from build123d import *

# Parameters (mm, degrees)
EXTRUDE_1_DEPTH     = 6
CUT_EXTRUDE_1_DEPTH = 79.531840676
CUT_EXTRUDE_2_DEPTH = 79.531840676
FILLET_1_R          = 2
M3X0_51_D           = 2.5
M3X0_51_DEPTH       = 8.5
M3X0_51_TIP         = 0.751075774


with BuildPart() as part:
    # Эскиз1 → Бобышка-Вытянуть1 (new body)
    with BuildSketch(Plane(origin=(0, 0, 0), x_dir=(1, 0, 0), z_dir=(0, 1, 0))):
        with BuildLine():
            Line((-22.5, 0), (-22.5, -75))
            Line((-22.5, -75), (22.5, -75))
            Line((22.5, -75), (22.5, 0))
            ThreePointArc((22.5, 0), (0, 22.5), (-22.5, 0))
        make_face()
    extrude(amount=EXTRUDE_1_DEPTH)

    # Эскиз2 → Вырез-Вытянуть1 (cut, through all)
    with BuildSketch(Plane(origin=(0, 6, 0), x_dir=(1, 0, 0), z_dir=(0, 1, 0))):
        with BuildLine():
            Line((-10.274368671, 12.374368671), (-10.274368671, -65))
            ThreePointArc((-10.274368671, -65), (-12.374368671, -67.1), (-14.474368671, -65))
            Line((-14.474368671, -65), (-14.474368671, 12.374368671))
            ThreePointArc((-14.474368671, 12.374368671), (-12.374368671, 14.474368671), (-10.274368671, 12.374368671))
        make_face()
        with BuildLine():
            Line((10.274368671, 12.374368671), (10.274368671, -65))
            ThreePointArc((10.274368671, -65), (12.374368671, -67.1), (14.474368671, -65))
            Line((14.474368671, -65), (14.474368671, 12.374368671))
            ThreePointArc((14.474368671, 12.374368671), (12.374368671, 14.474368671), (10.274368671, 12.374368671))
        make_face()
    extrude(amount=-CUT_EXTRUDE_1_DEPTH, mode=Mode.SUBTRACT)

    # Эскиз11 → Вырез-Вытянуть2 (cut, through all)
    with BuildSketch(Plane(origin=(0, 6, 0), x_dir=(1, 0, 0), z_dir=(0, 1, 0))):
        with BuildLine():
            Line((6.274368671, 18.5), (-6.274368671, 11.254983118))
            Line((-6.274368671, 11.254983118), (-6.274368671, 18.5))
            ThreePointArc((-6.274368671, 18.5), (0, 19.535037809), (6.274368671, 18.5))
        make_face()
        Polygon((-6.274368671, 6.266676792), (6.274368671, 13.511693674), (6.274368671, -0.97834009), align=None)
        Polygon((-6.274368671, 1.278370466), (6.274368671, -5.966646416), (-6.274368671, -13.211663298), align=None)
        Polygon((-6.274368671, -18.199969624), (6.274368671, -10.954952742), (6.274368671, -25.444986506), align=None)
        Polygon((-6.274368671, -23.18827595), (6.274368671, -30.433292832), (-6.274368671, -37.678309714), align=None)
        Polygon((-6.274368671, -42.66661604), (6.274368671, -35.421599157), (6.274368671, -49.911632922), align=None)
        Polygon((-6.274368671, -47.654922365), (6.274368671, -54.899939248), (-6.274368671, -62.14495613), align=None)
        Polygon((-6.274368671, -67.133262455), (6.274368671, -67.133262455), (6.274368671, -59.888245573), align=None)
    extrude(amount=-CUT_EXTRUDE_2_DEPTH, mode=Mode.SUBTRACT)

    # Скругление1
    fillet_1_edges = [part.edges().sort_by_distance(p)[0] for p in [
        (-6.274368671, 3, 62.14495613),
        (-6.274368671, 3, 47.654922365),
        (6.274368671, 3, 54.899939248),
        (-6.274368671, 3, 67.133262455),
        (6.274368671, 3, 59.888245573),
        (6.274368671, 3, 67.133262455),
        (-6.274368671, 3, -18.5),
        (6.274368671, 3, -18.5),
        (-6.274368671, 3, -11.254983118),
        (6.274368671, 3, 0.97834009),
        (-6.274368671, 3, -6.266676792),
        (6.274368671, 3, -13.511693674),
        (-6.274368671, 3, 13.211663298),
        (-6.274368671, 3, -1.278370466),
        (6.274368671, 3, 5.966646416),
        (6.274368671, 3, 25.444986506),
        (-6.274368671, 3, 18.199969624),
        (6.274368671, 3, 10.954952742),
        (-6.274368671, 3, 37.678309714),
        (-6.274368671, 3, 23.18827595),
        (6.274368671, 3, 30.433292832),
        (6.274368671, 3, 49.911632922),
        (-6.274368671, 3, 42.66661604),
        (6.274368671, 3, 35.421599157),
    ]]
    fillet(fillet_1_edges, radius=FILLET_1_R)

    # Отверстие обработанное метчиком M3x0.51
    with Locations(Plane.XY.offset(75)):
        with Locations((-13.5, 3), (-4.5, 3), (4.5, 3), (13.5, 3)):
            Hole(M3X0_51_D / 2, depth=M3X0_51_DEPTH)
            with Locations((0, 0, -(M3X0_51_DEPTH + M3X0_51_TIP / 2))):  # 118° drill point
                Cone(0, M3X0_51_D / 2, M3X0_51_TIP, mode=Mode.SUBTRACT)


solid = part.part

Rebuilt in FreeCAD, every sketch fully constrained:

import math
import FreeCAD as App
import Part
import Sketcher
Q = App.Units.Quantity


def edges_at(feature, points):
    """Names of the edges that pass closest to the given points."""
    edges = feature.Shape.Edges
    near = lambda p: min(range(len(edges)), key=lambda i: edges[i].distToShape(Part.Vertex(*p))[0])
    return sorted({f"Edge{near(p) + 1}" for p in points})

doc = App.newDocument("Part")
body = doc.addObject("PartDesign::Body", "Body")

sketch1 = doc.addObject("Sketcher::SketchObject", "Sketch")
body.addObject(sketch1)
sketch1.AttachmentSupport = (doc.XZ_Plane, [""])
sketch1.MapMode = "FlatFace"
sketch1.addGeometry([
    Part.LineSegment(App.Vector(-22, 0, 0), App.Vector(-22, 75, 0)),
    Part.LineSegment(App.Vector(-22, 75, 0), App.Vector(22, 75, 0)),
    Part.LineSegment(App.Vector(22, 75, 0), App.Vector(22, 0, 0)),
    Part.ArcOfCircle(Part.Circle(App.Vector(0, 0, 0), App.Vector(0, 0, 1), 22), math.radians(180), math.radians(360)),
], False)
sketch1.addConstraint([
    Sketcher.Constraint("Coincident", 0, 2, 1, 1),
    Sketcher.Constraint("Coincident", 1, 2, 2, 1),
    Sketcher.Constraint("Tangent", 2, 2, 3, 2),
    Sketcher.Constraint("Tangent", 3, 1, 0, 1),
    Sketcher.Constraint("Vertical", 0),
    Sketcher.Constraint("Horizontal", 1),
    Sketcher.Constraint("Vertical", 2),
    Sketcher.Constraint("Coincident", 3, 3, -1, 1),
    Sketcher.Constraint("Radius", 3, Q("22.5 mm")),
    Sketcher.Constraint("DistanceY", 0, 1, 0, 2, Q("75 mm")),
])
pad1 = doc.addObject("PartDesign::Pad", "Pad")
body.addObject(pad1)
pad1.Profile = sketch1
pad1.Length = 6
pad1.Reversed = True

sketch2 = doc.addObject("Sketcher::SketchObject", "Sketch001")
body.addObject(sketch2)
sketch2.AttachmentSupport = (doc.XZ_Plane, [""])
sketch2.MapMode = "FlatFace"
sketch2.AttachmentOffset = App.Placement(App.Vector(0, 0, -6), App.Rotation())
sketch2.addGeometry([
    Part.LineSegment(App.Vector(-10.3, 65, 0), App.Vector(-10.3, -12.4, 0)),
    Part.ArcOfCircle(Part.Circle(App.Vector(-12.4, -12.4, 0), App.Vector(0, 0, 1), 2.1), math.radians(180), math.radians(360)),
    Part.LineSegment(App.Vector(-14.5, -12.4, 0), App.Vector(-14.5, 65, 0)),
    Part.ArcOfCircle(Part.Circle(App.Vector(-12.4, 65, 0), App.Vector(0, 0, 1), 2.1), math.radians(0), math.radians(180)),
    Part.LineSegment(App.Vector(10.3, -12.4, 0), App.Vector(10.3, 65, 0)),
    Part.ArcOfCircle(Part.Circle(App.Vector(12.4, 65, 0), App.Vector(0, 0, 1), 2.1), math.radians(0), math.radians(180)),
    Part.LineSegment(App.Vector(14.5, 65, 0), App.Vector(14.5, -12.4, 0)),
    Part.ArcOfCircle(Part.Circle(App.Vector(12.4, -12.4, 0), App.Vector(0, 0, 1), 2.1), math.radians(180), math.radians(360)),
], False)
sketch2.addConstraint([
    Sketcher.Constraint("Tangent", 0, 2, 1, 2),
    Sketcher.Constraint("Tangent", 1, 1, 2, 1),
    Sketcher.Constraint("Tangent", 2, 2, 3, 2),
    Sketcher.Constraint("Tangent", 3, 1, 0, 1),
    Sketcher.Constraint("Tangent", 4, 2, 5, 2),
    Sketcher.Constraint("Tangent", 5, 1, 6, 1),
    Sketcher.Constraint("Tangent", 6, 2, 7, 2),
    Sketcher.Constraint("Tangent", 7, 1, 4, 1),
    Sketcher.Constraint("Vertical", 0),
    Sketcher.Constraint("Vertical", 2),
    Sketcher.Constraint("Vertical", 4),
    Sketcher.Constraint("Vertical", 6),
    Sketcher.Constraint("Equal", 3, 5),
    Sketcher.Constraint("Symmetric", 3, 3, 5, 3, -2),
    Sketcher.Constraint("Horizontal", 1, 3, 7, 3),
    Sketcher.Constraint("Radius", 1, Q("2.1 mm")),
    Sketcher.Constraint("DistanceY", -1, 1, 3, 3, Q("65 mm")),
    Sketcher.Constraint("DistanceY", 0, 2, 0, 1, Q("77.374369 mm")),
    Sketcher.Constraint("DistanceX", 1, 3, -1, 1, Q("12.374369 mm")),
])
pocket1 = doc.addObject("PartDesign::Pocket", "Pocket")
body.addObject(pocket1)
pocket1.Profile = sketch2
pocket1.Type = "ThroughAll"
pocket1.Reversed = True

sketch3 = doc.addObject("Sketcher::SketchObject", "Sketch002")
body.addObject(sketch3)
sketch3.AttachmentSupport = (doc.XZ_Plane, [""])
sketch3.MapMode = "FlatFace"
sketch3.AttachmentOffset = App.Placement(App.Vector(0, 0, -6), App.Rotation())
sketch3.addGeometry([
    Part.LineSegment(App.Vector(-6, -11, 0), App.Vector(6, -18, 0)),
    Part.ArcOfCircle(Part.Circle(App.Vector(0, 0, 0), App.Vector(0, 0, 1), 20), math.radians(-109), math.radians(-71)),
    Part.LineSegment(App.Vector(-6, -18, 0), App.Vector(-6, -11, 0)),
    Part.LineSegment(App.Vector(6, -14, 0), App.Vector(-6, -6, 0)),
    Part.LineSegment(App.Vector(-6, -6, 0), App.Vector(6, 1, 0)),
    Part.LineSegment(App.Vector(6, 1, 0), App.Vector(6, -14, 0)),
    Part.LineSegment(App.Vector(6, 6, 0), App.Vector(-6, -1, 0)),
    Part.LineSegment(App.Vector(-6, -1, 0), App.Vector(-6, 13, 0)),
    Part.LineSegment(App.Vector(-6, 13, 0), App.Vector(6, 6, 0)),
    Part.LineSegment(App.Vector(6, 11, 0), App.Vector(-6, 18, 0)),
    Part.LineSegment(App.Vector(-6, 18, 0), App.Vector(6, 25, 0)),
    Part.LineSegment(App.Vector(6, 25, 0), App.Vector(6, 11, 0)),
    Part.LineSegment(App.Vector(6, 30, 0), App.Vector(-6, 23, 0)),
    Part.LineSegment(App.Vector(-6, 23, 0), App.Vector(-6, 38, 0)),
    Part.LineSegment(App.Vector(-6, 38, 0), App.Vector(6, 30, 0)),
    Part.LineSegment(App.Vector(6, 35, 0), App.Vector(-6, 43, 0)),
    Part.LineSegment(App.Vector(-6, 43, 0), App.Vector(6, 50, 0)),
    Part.LineSegment(App.Vector(6, 50, 0), App.Vector(6, 35, 0)),
    Part.LineSegment(App.Vector(6, 55, 0), App.Vector(-6, 48, 0)),
    Part.LineSegment(App.Vector(-6, 48, 0), App.Vector(-6, 62, 0)),
    Part.LineSegment(App.Vector(-6, 62, 0), App.Vector(6, 55, 0)),
    Part.LineSegment(App.Vector(-6, 67, 0), App.Vector(6, 67, 0)),
    Part.LineSegment(App.Vector(6, 67, 0), App.Vector(6, 60, 0)),
    Part.LineSegment(App.Vector(6, 60, 0), App.Vector(-6, 67, 0)),
], False)
sketch3.addConstraint([
    Sketcher.Constraint("Coincident", 0, 2, 1, 2),
    Sketcher.Constraint("Coincident", 1, 1, 2, 1),
    Sketcher.Constraint("Coincident", 2, 2, 0, 1),
    Sketcher.Constraint("Coincident", 3, 2, 4, 1),
    Sketcher.Constraint("Coincident", 4, 2, 5, 1),
    Sketcher.Constraint("Coincident", 5, 2, 3, 1),
    Sketcher.Constraint("Coincident", 6, 2, 7, 1),
    Sketcher.Constraint("Coincident", 7, 2, 8, 1),
    Sketcher.Constraint("Coincident", 8, 2, 6, 1),
    Sketcher.Constraint("Coincident", 9, 2, 10, 1),
    Sketcher.Constraint("Coincident", 10, 2, 11, 1),
    Sketcher.Constraint("Coincident", 11, 2, 9, 1),
    Sketcher.Constraint("Coincident", 12, 2, 13, 1),
    Sketcher.Constraint("Coincident", 13, 2, 14, 1),
    Sketcher.Constraint("Coincident", 14, 2, 12, 1),
    Sketcher.Constraint("Coincident", 15, 2, 16, 1),
    Sketcher.Constraint("Coincident", 16, 2, 17, 1),
    Sketcher.Constraint("Coincident", 17, 2, 15, 1),
    Sketcher.Constraint("Coincident", 18, 2, 19, 1),
    Sketcher.Constraint("Coincident", 19, 2, 20, 1),
    Sketcher.Constraint("Coincident", 20, 2, 18, 1),
    Sketcher.Constraint("Coincident", 21, 2, 22, 1),
    Sketcher.Constraint("Coincident", 22, 2, 23, 1),
    Sketcher.Constraint("Coincident", 23, 2, 21, 1),
    Sketcher.Constraint("Vertical", 2),
    Sketcher.Constraint("Vertical", 5),
    Sketcher.Constraint("Vertical", 7),
    Sketcher.Constraint("Vertical", 11),
    Sketcher.Constraint("Vertical", 13),
    Sketcher.Constraint("Vertical", 17),
    Sketcher.Constraint("Vertical", 19),
    Sketcher.Constraint("Horizontal", 21),
    Sketcher.Constraint("Vertical", 22),
    Sketcher.Constraint("Coincident", 1, 3, -1, 1),
    Sketcher.Constraint("Parallel", 0, 3),
    Sketcher.Constraint("Parallel", 4, 6),
    Sketcher.Constraint("Parallel", 3, 8),
    Sketcher.Constraint("Parallel", 8, 9),
    Sketcher.Constraint("Parallel", 6, 10),
    Sketcher.Constraint("Parallel", 10, 12),
    Sketcher.Constraint("Parallel", 9, 14),
    Sketcher.Constraint("Parallel", 14, 15),
    Sketcher.Constraint("Parallel", 12, 16),
    Sketcher.Constraint("Parallel", 16, 18),
    Sketcher.Constraint("Parallel", 15, 20),
    Sketcher.Constraint("Parallel", 20, 23),
    Sketcher.Constraint("Horizontal", 0, 2, 1, 1),
    Sketcher.Constraint("Vertical", 2, 2, 3, 2),
    Sketcher.Constraint("Vertical", 0, 2, 4, 2),
    Sketcher.Constraint("Vertical", 3, 2, 6, 2),
    Sketcher.Constraint("Vertical", 5, 2, 8, 2),
    Sketcher.Constraint("Vertical", 7, 2, 9, 2),
    Sketcher.Constraint("Vertical", 8, 2, 10, 2),
    Sketcher.Constraint("Vertical", 9, 2, 12, 2),
    Sketcher.Constraint("Vertical", 11, 2, 14, 2),
    Sketcher.Constraint("Vertical", 13, 2, 15, 2),
    Sketcher.Constraint("Vertical", 14, 2, 16, 2),
    Sketcher.Constraint("Vertical", 15, 2, 18, 2),
    Sketcher.Constraint("Vertical", 17, 2, 20, 2),
    Sketcher.Constraint("Vertical", 20, 2, 21, 2),
    Sketcher.Constraint("Vertical", 19, 2, 23, 2),
    Sketcher.Constraint("Equal", 3, 4),
    Sketcher.Constraint("Angle", 0, Q("-30 deg")),
    Sketcher.Constraint("DistanceY", 0, 2, -1, 1, Q("18.5 mm")),
    Sketcher.Constraint("Radius", 1, Q("19.535038 mm")),
    Sketcher.Constraint("DistanceY", -1, 1, 17, 2, Q("35.421599 mm")),
    Sketcher.Constraint("DistanceY", -1, 1, 4, 2, Q("0.97834 mm")),
    Sketcher.Constraint("DistanceY", 6, 2, -1, 1, Q("1.27837 mm")),
    Sketcher.Constraint("DistanceY", -1, 1, 9, 2, Q("18.19997 mm")),
    Sketcher.Constraint("DistanceY", -1, 1, 13, 2, Q("37.67831 mm")),
    Sketcher.Constraint("DistanceY", -1, 1, 20, 2, Q("54.899939 mm")),
    Sketcher.Constraint("DistanceY", 16, 2, 21, 2, Q("17.22163 mm")),
])
pocket2 = doc.addObject("PartDesign::Pocket", "Pocket001")
body.addObject(pocket2)
pocket2.Profile = sketch3
pocket2.Type = "ThroughAll"
pocket2.Reversed = True
doc.recompute()

fillet = doc.addObject("PartDesign::Fillet", "Fillet")
body.addObject(fillet)
fillet.Base = (pocket2, edges_at(pocket2, [
    (-6.274, 3, 62.145),
    (-6.274, 3, 47.655),
    (6.274, 3, 54.9),
    (-6.274, 3, 67.133),
    (6.274, 3, 59.888),
    (6.274, 3, 67.133),
    (-6.274, 3, -18.5),
    (6.274, 3, -18.5),
    (-6.274, 3, -11.255),
    (6.274, 3, 0.978),
    (-6.274, 3, -6.267),
    (6.274, 3, -13.512),
    (-6.274, 3, 13.212),
    (-6.274, 3, -1.278),
    (6.274, 3, 5.967),
    (6.274, 3, 25.445),
    (-6.274, 3, 18.2),
    (6.274, 3, 10.955),
    (-6.274, 3, 37.678),
    (-6.274, 3, 23.188),
    (6.274, 3, 30.433),
    (6.274, 3, 49.912),
    (-6.274, 3, 42.667),
    (6.274, 3, 35.422),
]))
fillet.Radius = 2

sketch4 = doc.addObject("Sketcher::SketchObject", "Sketch003")
body.addObject(sketch4)
sketch4.AttachmentSupport = (doc.XY_Plane, [""])
sketch4.MapMode = "FlatFace"
sketch4.AttachmentOffset = App.Placement(App.Vector(0, 0, 75), App.Rotation())
sketch4.addGeometry([
    Part.Circle(App.Vector(-13.5, 3, 0), App.Vector(0, 0, 1), 1.2),
    Part.Circle(App.Vector(-4.5, 3, 0), App.Vector(0, 0, 1), 1.2),
    Part.Circle(App.Vector(4.5, 3, 0), App.Vector(0, 0, 1), 1.2),
    Part.Circle(App.Vector(13.5, 3, 0), App.Vector(0, 0, 1), 1.2),
], False)
sketch4.addConstraint([
    Sketcher.Constraint("Equal", 0, 1),
    Sketcher.Constraint("Equal", 1, 2),
    Sketcher.Constraint("Equal", 2, 3),
    Sketcher.Constraint("Symmetric", 1, 3, 2, 3, -2),
    Sketcher.Constraint("Symmetric", 0, 3, 3, 3, -2),
    Sketcher.Constraint("Horizontal", 0, 3, 1, 3),
    Sketcher.Constraint("Diameter", 0, Q("2.5 mm")),
    Sketcher.Constraint("DistanceY", -1, 1, 0, 3, Q("3 mm")),
    Sketcher.Constraint("DistanceX", 0, 3, 1, 3, Q("9 mm")),
    Sketcher.Constraint("DistanceX", 1, 3, 2, 3, Q("9 mm")),
])
doc.recompute()
hole = doc.addObject("PartDesign::Hole", "Hole")
body.addObject(hole)
hole.Profile = sketch4
hole.ThreadType = "None"
hole.Diameter = 2.5
hole.DepthType = "Dimension"
hole.Depth = 8.5
hole.DrillPoint = "Angled"
hole.DrillPointAngle = 118

doc.recompute()
